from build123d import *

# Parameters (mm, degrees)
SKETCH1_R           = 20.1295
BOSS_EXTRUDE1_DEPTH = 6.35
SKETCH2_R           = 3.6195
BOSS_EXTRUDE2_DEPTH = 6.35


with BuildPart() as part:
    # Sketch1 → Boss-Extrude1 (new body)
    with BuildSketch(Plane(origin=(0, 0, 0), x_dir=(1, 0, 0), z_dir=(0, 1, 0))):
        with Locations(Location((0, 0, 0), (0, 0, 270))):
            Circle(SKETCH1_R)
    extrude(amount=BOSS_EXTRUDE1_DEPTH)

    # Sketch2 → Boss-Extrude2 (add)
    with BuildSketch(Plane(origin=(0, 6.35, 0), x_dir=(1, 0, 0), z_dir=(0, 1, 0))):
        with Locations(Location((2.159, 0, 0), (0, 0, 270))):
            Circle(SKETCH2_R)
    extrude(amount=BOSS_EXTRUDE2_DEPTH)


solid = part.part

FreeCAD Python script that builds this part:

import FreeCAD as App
import Part
import Sketcher
Q = App.Units.Quantity

doc = App.newDocument("Part")
body = doc.addObject("PartDesign::Body", "Body")

sketch1 = body.newObject("Sketcher::SketchObject", "Sketch")
sketch1.AttachmentSupport = (doc.getObject("XZ_Plane"), [""])
sketch1.MapMode = "FlatFace"
sketch1.addGeometry(Part.Circle(App.Vector(0, 0, 0), App.Vector(0, 0, 1), 20), False)
sketch1.addConstraint(Sketcher.Constraint("Coincident", 0, 3, -1, 1))
sketch1.addConstraint(Sketcher.Constraint("Diameter", 0, Q("1.585 in")))
pad1 = body.newObject("PartDesign::Pad", "Pad")
pad1.Profile = sketch1
pad1.Length = Q("0.25 in")
pad1.Reversed = True

sketch2 = body.newObject("Sketcher::SketchObject", "Sketch001")
sketch2.AttachmentSupport = (doc.getObject("XZ_Plane"), [""])
sketch2.MapMode = "FlatFace"
sketch2.AttachmentOffset = App.Placement(App.Vector(0, 0, -0.25 * 25.4), App.Rotation())
sketch2.addGeometry(Part.Circle(App.Vector(2.2, 0, 0), App.Vector(0, 0, 1), 3.6), False)
sketch2.addConstraint(Sketcher.Constraint("PointOnObject", 0, 3, -1))
sketch2.addConstraint(Sketcher.Constraint("Diameter", 0, Q("0.285 in")))
sketch2.addConstraint(Sketcher.Constraint("DistanceX", -1, 1, 0, 3, Q("0.085 in")))
pad2 = body.newObject("PartDesign::Pad", "Pad001")
pad2.Profile = sketch2
pad2.Length = Q("0.25 in")
pad2.Reversed = True

doc.recompute()
